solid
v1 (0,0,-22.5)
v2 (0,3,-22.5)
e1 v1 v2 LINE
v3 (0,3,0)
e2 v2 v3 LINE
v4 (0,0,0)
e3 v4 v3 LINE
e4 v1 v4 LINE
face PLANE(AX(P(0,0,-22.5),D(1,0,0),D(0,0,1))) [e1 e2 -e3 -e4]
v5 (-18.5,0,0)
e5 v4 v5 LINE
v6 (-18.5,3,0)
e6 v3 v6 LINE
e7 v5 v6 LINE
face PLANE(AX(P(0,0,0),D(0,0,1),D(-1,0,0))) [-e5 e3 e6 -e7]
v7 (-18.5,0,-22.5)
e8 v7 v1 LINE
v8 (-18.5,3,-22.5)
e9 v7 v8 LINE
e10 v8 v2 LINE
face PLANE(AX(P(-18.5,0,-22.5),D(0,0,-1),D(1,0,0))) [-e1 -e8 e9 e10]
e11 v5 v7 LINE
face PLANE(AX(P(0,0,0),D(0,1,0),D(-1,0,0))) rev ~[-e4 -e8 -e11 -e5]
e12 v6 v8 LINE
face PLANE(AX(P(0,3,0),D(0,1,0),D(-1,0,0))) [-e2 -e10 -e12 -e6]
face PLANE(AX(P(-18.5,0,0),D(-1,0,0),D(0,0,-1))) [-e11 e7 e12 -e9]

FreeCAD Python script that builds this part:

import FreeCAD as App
import Part
import Sketcher

V = App.Vector


def add_polygon(sketch, points):
    """Adds a closed chain of lines whose ends are joined by coincident constraints."""
    first, n = sketch.GeometryCount, len(points)
    for a, b in zip(points, points[1:] + points[:1]):
        sketch.addGeometry(Part.LineSegment(App.Vector(*a, 0), App.Vector(*b, 0)), False)
    for i in range(n):
        sketch.addConstraint(Sketcher.Constraint("Coincident", first + i, 2, first + (i + 1) % n, 1))

doc = App.newDocument("Part")
body = doc.addObject("PartDesign::Body", "Body")

sketch1 = doc.addObject("Sketcher::SketchObject", "Sketch")
body.addObject(sketch1)
sketch1.AttachmentSupport = (doc.XZ_Plane, [""])
sketch1.MapMode = "FlatFace"
add_polygon(sketch1, [(-18, 0), (0, 0), (0, -22), (-18, -22)])
sketch1.addConstraint([
    Sketcher.Constraint("Horizontal", 0),
    Sketcher.Constraint("Vertical", 1),
    Sketcher.Constraint("Horizontal", 2),
    Sketcher.Constraint("Vertical", 3),
    Sketcher.Constraint("Coincident", 0, 2, -1, 1),
    Sketcher.Constraint("DistanceX", 0, 1, 0, 2, 18.5),
    Sketcher.Constraint("DistanceY", 1, 2, 1, 1, 22.5),
])
pad1 = doc.addObject("PartDesign::Pad", "Pad")
body.addObject(pad1)
pad1.Profile = sketch1
pad1.Length = 3
pad1.Reversed = True

doc.recompute()
